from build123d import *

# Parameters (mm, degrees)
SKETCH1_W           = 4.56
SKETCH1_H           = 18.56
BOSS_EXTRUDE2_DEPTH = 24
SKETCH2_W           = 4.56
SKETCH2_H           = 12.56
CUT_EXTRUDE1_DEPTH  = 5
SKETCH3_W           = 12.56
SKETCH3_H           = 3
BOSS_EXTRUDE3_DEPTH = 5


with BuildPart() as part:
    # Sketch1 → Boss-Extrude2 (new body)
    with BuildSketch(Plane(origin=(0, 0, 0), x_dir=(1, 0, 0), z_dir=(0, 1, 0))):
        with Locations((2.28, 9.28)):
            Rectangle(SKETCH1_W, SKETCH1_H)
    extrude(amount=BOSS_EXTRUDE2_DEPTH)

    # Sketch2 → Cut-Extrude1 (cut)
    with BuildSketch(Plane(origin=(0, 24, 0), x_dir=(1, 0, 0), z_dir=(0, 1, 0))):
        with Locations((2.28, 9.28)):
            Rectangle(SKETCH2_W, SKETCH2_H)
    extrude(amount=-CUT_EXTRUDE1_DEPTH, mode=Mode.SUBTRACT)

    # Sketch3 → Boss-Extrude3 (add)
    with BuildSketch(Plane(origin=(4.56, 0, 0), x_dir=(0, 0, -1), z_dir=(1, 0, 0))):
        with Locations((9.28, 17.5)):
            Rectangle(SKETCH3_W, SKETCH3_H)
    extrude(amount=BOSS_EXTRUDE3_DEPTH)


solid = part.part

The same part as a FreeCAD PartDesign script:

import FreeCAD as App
import Part
import Sketcher
from FreeCAD import Vector
Q = App.Units.Quantity


def add_polygon(sketch, points):
    """Adds a closed chain of lines whose ends are joined by coincident constraints."""
    first, n = sketch.GeometryCount, len(points)
    for a, b in zip(points, points[1:] + points[:1]):
        sketch.addGeometry(Part.LineSegment(App.Vector(*a, 0), App.Vector(*b, 0)), False)
    for i in range(n):
        sketch.addConstraint(Sketcher.Constraint("Coincident", first + i, 2, first + (i + 1) % n, 1))

doc = App.newDocument("Part")
body = doc.addObject("PartDesign::Body", "Body")

sketch1 = body.newObject("Sketcher::SketchObject", "Sketch")
sketch1.AttachmentSupport = (doc.getObject("XZ_Plane"), [""])
sketch1.MapMode = "FlatFace"
add_polygon(sketch1, [(0, -18.6), (0, 0), (4.6, 0), (4.6, -18.6)])
sketch1.addConstraint([
    Sketcher.Constraint("Vertical", 0),
    Sketcher.Constraint("Horizontal", 1),
    Sketcher.Constraint("Vertical", 2),
    Sketcher.Constraint("Horizontal", 3),
    Sketcher.Constraint("Coincident", 0, 2, -1, 1),
    Sketcher.Constraint("DistanceX", 1, 1, 1, 2, Q("4.56 mm")),
    Sketcher.Constraint("DistanceY", 0, 1, 0, 2, Q("18.56 mm")),
])
pad1 = body.newObject("PartDesign::Pad", "Pad")
pad1.Profile = sketch1
pad1.Length = 24
pad1.Reversed = True

sketch2 = body.newObject("Sketcher::SketchObject", "Sketch001")
sketch2.AttachmentSupport = (doc.getObject("XZ_Plane"), [""])
sketch2.MapMode = "FlatFace"
sketch2.AttachmentOffset = App.Placement(Vector(0, 0, -24), App.Rotation())
add_polygon(sketch2, [(0, -15.6), (0, -3), (4.6, -3), (4.6, -15.6)])
sketch2.addConstraint([
    Sketcher.Constraint("Vertical", 0),
    Sketcher.Constraint("Horizontal", 1),
    Sketcher.Constraint("Vertical", 2),
    Sketcher.Constraint("Horizontal", 3),
    Sketcher.Constraint("PointOnObject", 0, 2, -2),
    Sketcher.Constraint("DistanceY", 0, 2, -1, 1, Q("3 mm")),
    Sketcher.Constraint("DistanceX", 1, 1, 1, 2, Q("4.56 mm")),
    Sketcher.Constraint("DistanceY", 0, 1, 0, 2, Q("12.56 mm")),
])
pocket1 = body.newObject("PartDesign::Pocket", "Pocket")
pocket1.Profile = sketch2
pocket1.Length = 5
pocket1.Reversed = True

sketch3 = body.newObject("Sketcher::SketchObject", "Sketch002")
sketch3.AttachmentSupport = (doc.getObject("YZ_Plane"), [""])
sketch3.MapMode = "FlatFace"
sketch3.AttachmentOffset = App.Placement(Vector(0, 0, 4.56), App.Rotation())
add_polygon(sketch3, [(19, -3), (16, -3), (16, -15.6), (19, -15.6)])
sketch3.addConstraint([
    Sketcher.Constraint("Horizontal", 0),
    Sketcher.Constraint("Vertical", 1),
    Sketcher.Constraint("Horizontal", 2),
    Sketcher.Constraint("Vertical", 3),
    Sketcher.Constraint("DistanceX", 0, 2, 0, 1, Q("3 mm")),
    Sketcher.Constraint("DistanceX", -1, 1, 0, 2, Q("16 mm")),
    Sketcher.Constraint("DistanceY", 0, 2, -1, 1, Q("3 mm")),
    Sketcher.Constraint("DistanceY", 1, 2, 1, 1, Q("12.56 mm")),
])
pad2 = body.newObject("PartDesign::Pad", "Pad001")
pad2.Profile = sketch3
pad2.Length = 5

doc.recompute()
